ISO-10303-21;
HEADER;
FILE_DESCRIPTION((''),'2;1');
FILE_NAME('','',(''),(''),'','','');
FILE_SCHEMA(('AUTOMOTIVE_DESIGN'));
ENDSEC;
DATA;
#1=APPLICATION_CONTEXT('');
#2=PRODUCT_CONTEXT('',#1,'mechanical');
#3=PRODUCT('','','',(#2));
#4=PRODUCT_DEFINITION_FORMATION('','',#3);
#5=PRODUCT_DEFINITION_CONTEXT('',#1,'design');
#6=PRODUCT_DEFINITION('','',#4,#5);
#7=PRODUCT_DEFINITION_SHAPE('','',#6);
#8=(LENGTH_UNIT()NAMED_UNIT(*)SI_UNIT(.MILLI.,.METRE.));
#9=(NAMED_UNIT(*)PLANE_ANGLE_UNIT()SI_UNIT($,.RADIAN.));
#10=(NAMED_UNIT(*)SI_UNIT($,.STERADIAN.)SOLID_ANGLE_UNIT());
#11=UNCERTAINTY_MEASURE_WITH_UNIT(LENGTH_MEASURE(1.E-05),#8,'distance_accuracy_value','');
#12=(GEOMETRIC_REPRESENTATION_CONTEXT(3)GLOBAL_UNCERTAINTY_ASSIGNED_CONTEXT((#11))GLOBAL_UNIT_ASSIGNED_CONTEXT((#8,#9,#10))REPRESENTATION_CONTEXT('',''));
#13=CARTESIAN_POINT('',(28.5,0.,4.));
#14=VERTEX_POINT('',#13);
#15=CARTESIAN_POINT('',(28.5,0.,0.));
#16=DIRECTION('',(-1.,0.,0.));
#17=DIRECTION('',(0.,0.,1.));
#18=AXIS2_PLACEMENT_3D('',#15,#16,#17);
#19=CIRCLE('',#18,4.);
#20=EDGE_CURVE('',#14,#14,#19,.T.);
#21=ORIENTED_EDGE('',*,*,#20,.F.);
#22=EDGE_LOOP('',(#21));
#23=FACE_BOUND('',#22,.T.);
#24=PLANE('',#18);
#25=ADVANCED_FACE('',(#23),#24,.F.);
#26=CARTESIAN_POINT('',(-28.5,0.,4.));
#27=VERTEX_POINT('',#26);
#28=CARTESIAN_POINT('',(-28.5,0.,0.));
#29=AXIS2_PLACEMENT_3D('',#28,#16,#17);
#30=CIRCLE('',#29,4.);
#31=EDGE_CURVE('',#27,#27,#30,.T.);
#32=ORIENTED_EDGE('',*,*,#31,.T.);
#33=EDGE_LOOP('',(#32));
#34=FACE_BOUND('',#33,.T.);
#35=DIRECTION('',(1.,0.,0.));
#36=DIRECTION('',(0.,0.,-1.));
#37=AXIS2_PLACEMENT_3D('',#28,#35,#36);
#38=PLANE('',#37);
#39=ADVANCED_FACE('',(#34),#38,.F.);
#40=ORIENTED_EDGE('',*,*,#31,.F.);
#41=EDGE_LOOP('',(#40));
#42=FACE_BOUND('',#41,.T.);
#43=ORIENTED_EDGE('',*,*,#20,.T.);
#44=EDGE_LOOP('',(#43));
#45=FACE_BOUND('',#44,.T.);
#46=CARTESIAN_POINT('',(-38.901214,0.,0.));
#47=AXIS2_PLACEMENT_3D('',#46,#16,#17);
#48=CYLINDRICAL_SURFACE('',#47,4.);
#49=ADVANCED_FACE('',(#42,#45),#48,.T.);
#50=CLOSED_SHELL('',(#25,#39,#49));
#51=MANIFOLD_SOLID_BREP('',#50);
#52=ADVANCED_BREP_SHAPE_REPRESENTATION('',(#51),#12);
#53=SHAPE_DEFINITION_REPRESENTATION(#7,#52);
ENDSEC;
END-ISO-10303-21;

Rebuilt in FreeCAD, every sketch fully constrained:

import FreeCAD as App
import Part
import Sketcher
Q = App.Units.Quantity

doc = App.newDocument("Part")
body = doc.addObject("PartDesign::Body", "Body")

sketch1 = body.newObject("Sketcher::SketchObject", "Sketch")
sketch1.AttachmentSupport = (doc.getObject("XY_Plane"), [""])
sketch1.MapMode = "FlatFace"
sketch1.addGeometry([
    Part.LineSegment(App.Vector(-28.5, 4, 0), App.Vector(-28.5, 0, 0)),
    Part.LineSegment(App.Vector(-28.5, 0, 0), App.Vector(28.5, 0, 0)),
    Part.LineSegment(App.Vector(28.5, 0, 0), App.Vector(28.5, 4, 0)),
    Part.LineSegment(App.Vector(28.5, 4, 0), App.Vector(-28.5, 4, 0)),
], False)
sketch1.addConstraint([
    Sketcher.Constraint("Coincident", 0, 2, 1, 1),
    Sketcher.Constraint("Coincident", 1, 2, 2, 1),
    Sketcher.Constraint("Coincident", 2, 2, 3, 1),
    Sketcher.Constraint("Coincident", 3, 2, 0, 1),
    Sketcher.Constraint("Vertical", 0),
    Sketcher.Constraint("Horizontal", 1),
    Sketcher.Constraint("Vertical", 2),
    Sketcher.Constraint("Horizontal", 3),
    Sketcher.Constraint("Symmetric", 0, 2, 1, 2, -1, 1),
    Sketcher.Constraint("DistanceX", 1, 1, 1, 2, Q("57 mm")),
    Sketcher.Constraint("DistanceY", 0, 2, 0, 1, Q("4 mm")),
])
revolution = body.newObject("PartDesign::Revolution", "Revolution")
revolution.Profile = sketch1
revolution.ReferenceAxis = (sketch1, ["H_Axis"])
revolution.Angle = 360

doc.recompute()
